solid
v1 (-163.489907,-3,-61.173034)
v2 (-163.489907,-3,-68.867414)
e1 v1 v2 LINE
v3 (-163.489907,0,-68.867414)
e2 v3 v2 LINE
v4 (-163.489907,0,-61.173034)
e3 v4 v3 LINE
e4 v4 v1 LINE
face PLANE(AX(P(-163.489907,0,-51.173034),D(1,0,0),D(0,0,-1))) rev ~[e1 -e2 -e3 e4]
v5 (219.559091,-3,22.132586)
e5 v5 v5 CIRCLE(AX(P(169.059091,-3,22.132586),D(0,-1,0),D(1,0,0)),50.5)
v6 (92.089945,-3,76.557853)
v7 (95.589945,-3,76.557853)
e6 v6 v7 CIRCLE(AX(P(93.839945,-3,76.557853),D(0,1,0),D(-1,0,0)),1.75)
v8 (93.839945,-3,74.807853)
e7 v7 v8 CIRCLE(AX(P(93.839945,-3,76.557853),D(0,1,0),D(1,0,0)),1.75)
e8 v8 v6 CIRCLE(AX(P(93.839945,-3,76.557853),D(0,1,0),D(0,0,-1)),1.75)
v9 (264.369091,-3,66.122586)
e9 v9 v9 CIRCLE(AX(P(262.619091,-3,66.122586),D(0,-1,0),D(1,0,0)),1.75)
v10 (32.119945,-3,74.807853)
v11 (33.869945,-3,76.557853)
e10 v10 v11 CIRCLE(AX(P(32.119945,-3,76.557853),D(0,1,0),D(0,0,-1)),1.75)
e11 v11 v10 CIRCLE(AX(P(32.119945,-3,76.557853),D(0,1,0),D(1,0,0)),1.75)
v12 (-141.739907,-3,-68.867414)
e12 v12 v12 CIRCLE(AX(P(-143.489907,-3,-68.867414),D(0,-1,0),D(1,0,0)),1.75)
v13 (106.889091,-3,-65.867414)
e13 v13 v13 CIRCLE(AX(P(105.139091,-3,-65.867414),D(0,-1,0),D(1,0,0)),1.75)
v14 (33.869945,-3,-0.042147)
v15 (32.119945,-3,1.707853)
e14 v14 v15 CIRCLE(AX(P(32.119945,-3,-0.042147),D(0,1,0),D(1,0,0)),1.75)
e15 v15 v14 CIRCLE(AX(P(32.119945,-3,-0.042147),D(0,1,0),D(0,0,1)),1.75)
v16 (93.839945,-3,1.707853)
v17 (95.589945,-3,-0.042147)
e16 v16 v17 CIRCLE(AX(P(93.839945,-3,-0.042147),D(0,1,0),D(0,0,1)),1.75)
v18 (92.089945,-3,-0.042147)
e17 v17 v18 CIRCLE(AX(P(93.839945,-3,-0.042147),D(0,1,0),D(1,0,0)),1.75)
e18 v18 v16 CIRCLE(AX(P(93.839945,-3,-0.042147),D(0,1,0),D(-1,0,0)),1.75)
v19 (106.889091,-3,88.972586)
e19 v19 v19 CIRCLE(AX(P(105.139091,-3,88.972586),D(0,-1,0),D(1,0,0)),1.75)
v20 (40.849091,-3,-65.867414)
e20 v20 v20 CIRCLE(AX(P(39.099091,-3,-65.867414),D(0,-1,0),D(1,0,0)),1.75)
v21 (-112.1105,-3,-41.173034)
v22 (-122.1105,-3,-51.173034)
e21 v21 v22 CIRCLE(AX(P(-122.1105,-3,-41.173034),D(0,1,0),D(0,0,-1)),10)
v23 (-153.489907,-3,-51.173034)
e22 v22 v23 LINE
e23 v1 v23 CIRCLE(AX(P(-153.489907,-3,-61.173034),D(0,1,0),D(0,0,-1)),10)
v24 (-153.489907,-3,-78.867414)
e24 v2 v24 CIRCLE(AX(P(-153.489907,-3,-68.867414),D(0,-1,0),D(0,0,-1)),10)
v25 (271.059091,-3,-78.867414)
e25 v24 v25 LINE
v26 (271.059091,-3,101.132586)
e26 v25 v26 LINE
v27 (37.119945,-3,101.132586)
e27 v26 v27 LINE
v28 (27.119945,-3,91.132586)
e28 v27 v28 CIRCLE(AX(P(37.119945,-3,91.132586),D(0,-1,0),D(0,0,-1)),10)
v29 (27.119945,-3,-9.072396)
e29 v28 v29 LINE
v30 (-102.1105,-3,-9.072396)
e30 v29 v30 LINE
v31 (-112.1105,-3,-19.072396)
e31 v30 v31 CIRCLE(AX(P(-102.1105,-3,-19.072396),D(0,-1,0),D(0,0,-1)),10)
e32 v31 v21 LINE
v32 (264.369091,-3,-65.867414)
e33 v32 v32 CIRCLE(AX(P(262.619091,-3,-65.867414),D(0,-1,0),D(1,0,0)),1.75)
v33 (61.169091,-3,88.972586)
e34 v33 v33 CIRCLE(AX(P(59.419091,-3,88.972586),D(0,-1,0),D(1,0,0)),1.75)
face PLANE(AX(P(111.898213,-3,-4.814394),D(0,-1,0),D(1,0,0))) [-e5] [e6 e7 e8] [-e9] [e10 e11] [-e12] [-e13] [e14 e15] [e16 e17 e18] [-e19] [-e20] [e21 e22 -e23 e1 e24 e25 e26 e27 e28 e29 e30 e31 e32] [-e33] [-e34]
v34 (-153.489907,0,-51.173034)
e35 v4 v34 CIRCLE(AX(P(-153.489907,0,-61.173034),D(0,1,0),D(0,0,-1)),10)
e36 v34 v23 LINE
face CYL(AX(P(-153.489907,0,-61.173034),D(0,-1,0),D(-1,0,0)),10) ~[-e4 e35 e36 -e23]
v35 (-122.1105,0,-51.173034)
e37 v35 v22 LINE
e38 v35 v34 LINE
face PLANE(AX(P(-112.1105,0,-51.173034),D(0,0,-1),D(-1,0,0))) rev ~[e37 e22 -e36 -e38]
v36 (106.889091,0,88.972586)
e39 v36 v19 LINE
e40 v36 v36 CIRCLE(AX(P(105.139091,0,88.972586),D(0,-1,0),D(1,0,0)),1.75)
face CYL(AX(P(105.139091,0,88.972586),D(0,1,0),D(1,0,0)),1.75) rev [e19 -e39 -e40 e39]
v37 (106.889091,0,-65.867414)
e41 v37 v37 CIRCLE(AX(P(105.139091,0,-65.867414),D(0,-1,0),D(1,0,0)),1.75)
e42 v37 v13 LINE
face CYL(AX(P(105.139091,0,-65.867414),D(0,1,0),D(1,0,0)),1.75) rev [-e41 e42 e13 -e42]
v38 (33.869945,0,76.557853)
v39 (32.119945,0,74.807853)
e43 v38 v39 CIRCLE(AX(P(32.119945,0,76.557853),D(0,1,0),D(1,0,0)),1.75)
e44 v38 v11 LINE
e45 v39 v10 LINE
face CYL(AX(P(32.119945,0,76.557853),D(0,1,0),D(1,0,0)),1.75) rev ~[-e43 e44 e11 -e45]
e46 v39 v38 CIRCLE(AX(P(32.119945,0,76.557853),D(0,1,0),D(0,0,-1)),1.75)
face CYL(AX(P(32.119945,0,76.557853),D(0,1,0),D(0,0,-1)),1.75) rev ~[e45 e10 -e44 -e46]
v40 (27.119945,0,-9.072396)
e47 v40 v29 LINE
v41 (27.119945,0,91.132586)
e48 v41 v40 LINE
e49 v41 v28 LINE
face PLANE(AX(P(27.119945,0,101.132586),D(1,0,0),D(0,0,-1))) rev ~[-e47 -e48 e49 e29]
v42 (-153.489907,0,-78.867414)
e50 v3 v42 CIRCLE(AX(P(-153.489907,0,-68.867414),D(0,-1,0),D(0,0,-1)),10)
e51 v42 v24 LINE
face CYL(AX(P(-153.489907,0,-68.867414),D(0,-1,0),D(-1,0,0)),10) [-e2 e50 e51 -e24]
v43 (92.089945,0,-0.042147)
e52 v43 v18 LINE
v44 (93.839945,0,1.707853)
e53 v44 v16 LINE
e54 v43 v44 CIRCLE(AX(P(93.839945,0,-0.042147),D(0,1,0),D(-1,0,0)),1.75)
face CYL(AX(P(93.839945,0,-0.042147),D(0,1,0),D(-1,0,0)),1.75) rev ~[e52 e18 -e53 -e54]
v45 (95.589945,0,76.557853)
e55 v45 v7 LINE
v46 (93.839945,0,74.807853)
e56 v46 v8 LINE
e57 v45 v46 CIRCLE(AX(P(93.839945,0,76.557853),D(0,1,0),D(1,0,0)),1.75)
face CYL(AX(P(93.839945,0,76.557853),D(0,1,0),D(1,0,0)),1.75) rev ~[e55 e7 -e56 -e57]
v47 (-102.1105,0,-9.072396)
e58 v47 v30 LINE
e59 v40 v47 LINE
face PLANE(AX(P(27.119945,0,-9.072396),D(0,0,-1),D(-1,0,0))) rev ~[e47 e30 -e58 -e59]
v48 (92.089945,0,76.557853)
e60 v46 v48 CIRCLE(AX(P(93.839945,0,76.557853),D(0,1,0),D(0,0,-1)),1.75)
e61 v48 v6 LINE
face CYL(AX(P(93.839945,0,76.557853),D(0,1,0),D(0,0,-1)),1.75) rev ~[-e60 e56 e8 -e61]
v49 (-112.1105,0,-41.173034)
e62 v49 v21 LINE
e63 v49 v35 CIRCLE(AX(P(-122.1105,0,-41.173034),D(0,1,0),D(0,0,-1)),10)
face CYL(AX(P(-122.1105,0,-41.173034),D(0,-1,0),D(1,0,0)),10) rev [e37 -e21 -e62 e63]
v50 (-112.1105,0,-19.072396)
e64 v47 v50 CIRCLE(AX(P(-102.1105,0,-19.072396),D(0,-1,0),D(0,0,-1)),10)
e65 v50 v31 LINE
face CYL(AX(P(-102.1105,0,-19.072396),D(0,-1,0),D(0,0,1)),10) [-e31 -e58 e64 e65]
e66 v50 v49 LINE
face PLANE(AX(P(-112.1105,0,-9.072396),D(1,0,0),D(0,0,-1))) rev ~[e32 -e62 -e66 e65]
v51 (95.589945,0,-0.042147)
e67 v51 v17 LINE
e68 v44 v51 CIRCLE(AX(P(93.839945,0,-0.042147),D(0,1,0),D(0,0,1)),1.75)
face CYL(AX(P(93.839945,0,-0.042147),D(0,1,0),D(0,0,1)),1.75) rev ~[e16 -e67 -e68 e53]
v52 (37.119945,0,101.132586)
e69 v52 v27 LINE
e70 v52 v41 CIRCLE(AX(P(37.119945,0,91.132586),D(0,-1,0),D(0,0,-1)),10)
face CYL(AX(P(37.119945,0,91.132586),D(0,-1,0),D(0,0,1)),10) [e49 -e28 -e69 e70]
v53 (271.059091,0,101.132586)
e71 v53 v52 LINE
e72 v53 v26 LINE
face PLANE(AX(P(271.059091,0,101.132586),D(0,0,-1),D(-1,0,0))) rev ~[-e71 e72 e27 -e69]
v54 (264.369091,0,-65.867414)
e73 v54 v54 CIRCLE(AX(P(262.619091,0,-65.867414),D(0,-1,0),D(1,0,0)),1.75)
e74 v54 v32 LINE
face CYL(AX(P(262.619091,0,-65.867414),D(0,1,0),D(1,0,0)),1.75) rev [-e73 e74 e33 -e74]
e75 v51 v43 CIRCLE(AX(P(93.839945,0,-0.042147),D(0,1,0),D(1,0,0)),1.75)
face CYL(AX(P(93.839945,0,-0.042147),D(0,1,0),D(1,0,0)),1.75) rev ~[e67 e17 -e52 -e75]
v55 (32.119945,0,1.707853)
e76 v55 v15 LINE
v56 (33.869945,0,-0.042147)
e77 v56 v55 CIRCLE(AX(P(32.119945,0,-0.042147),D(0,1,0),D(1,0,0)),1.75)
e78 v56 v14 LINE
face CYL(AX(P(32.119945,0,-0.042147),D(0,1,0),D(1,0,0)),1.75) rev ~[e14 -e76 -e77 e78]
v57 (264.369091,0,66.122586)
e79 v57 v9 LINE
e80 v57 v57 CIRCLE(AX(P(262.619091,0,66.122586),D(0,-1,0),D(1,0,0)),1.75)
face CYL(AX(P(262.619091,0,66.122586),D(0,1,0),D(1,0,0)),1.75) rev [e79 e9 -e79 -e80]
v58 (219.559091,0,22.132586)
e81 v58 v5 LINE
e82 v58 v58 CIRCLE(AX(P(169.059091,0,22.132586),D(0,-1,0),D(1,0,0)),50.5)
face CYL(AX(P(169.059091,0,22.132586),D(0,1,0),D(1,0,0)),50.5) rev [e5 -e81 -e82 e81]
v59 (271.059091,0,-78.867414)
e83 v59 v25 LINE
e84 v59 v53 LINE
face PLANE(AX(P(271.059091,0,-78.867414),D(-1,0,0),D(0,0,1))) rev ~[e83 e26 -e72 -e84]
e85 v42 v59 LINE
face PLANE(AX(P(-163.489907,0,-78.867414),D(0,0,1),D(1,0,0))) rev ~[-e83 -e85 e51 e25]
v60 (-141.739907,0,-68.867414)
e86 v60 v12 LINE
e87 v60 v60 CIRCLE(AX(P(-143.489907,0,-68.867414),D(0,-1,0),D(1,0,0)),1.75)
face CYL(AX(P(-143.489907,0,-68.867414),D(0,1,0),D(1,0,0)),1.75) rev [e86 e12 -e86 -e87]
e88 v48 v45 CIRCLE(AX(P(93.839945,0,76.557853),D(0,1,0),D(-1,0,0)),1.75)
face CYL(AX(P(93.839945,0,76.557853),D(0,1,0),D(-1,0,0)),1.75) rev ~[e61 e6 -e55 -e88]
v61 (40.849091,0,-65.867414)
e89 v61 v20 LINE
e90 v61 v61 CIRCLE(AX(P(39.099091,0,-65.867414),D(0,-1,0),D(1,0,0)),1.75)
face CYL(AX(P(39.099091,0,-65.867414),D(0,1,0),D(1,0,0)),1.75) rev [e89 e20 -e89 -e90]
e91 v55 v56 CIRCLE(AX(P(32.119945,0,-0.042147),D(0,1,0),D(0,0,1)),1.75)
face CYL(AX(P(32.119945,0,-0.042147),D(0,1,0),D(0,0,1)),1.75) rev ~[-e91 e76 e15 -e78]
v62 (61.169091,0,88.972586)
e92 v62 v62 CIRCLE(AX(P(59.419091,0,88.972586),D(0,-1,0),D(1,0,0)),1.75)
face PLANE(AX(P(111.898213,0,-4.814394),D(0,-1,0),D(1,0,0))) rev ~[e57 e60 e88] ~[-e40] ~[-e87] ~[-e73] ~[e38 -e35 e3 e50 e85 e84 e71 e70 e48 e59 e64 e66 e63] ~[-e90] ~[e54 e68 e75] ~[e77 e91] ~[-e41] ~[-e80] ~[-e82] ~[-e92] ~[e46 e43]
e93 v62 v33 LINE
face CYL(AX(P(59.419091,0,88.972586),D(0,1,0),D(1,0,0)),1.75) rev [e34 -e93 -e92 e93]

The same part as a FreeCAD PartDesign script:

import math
import FreeCAD as App
import Part
import Sketcher

V = App.Vector


def edges_at(feature, points):
    """Names of the edges that pass closest to the given points."""
    edges = feature.Shape.Edges
    near = lambda p: min(range(len(edges)), key=lambda i: edges[i].distToShape(Part.Vertex(*p))[0])
    return sorted({f"Edge{near(p) + 1}" for p in points})

doc = App.newDocument("Part")
body = doc.addObject("PartDesign::Body", "Body")

# Sketch on XZ plane
sketch1 = body.newObject("Sketcher::SketchObject", "Sketch")
sketch1.AttachmentSupport = (doc.getObject("XZ_Plane"), [""])
sketch1.MapMode = "FlatFace"
sketch1.addGeometry([
    Part.LineSegment(V(-163.5, -51.2, 0), V(-163.5, -78.9, 0)),  # 0
    Part.LineSegment(V(-163.5, -78.9, 0), V(271.1, -78.9, 0)),  # 1
    Part.LineSegment(V(271.1, -78.9, 0), V(271.1, 101.1, 0)),  # 2
    Part.LineSegment(V(271.1, 101.1, 0), V(27.1, 101.1, 0)),  # 3
    Part.LineSegment(V(27.1, 101.1, 0), V(27.1, -9.1, 0)),  # 4
    Part.LineSegment(V(27.1, -9.1, 0), V(-112.1, -9.1, 0)),  # 5
    Part.LineSegment(V(-112.1, -9.1, 0), V(-112.1, -51.2, 0)),  # 6
    Part.LineSegment(V(-112.1, -51.2, 0), V(-163.5, -51.2, 0)),  # 7
    Part.Circle(V(-143.5, -68.9, 0), V(0, 0, 1), 1.8),  # 8
    Part.Circle(V(39.1, -65.9, 0), V(0, 0, 1), 1.8),  # 9
    Part.Circle(V(105.1, -65.9, 0), V(0, 0, 1), 1.8),  # 10
    Part.Circle(V(262.6, -65.9, 0), V(0, 0, 1), 1.8),  # 11
    Part.Circle(V(59.4, 89, 0), V(0, 0, 1), 1.8),  # 12
    Part.ArcOfCircle(Part.Circle(V(32.1, 0, 0), V(0, 0, 1), 1.8), math.radians(90), math.radians(360)),  # 13
    Part.ArcOfCircle(Part.Circle(V(32.1, 0, 0), V(0, 0, 1), 1.8), math.radians(0), math.radians(90)),  # 14
    Part.ArcOfCircle(Part.Circle(V(32.1, 76.6, 0), V(0, 0, 1), 1.8), math.radians(0), math.radians(270)),  # 15
    Part.ArcOfCircle(Part.Circle(V(32.1, 76.6, 0), V(0, 0, 1), 1.8), math.radians(-90), math.radians(0)),  # 16
    Part.ArcOfCircle(Part.Circle(V(93.8, 0, 0), V(0, 0, 1), 1.8), math.radians(180), math.radians(360)),  # 17
    Part.ArcOfCircle(Part.Circle(V(93.8, 0, 0), V(0, 0, 1), 1.8), math.radians(90), math.radians(180)),  # 18
    Part.ArcOfCircle(Part.Circle(V(93.8, 0, 0), V(0, 0, 1), 1.8), math.radians(0), math.radians(90)),  # 19
    Part.ArcOfCircle(Part.Circle(V(93.8, 76.6, 0), V(0, 0, 1), 1.8), math.radians(0), math.radians(180)),  # 20
    Part.ArcOfCircle(Part.Circle(V(93.8, 76.6, 0), V(0, 0, 1), 1.8), math.radians(-90), math.radians(0)),  # 21
    Part.ArcOfCircle(Part.Circle(V(93.8, 76.6, 0), V(0, 0, 1), 1.8), math.radians(-180), math.radians(-90)),  # 22
    Part.Circle(V(169.1, 22.1, 0), V(0, 0, 1), 50.5),  # 23
    Part.Circle(V(105.1, 89, 0), V(0, 0, 1), 1.8),  # 24
    Part.Circle(V(262.6, 66.1, 0), V(0, 0, 1), 1.8),  # 25
], False)
sketch1.addConstraint([
    Sketcher.Constraint("Coincident", 0, 2, 1, 1),
    Sketcher.Constraint("Coincident", 1, 2, 2, 1),
    Sketcher.Constraint("Coincident", 2, 2, 3, 1),
    Sketcher.Constraint("Coincident", 3, 2, 4, 1),
    Sketcher.Constraint("Coincident", 4, 2, 5, 1),
    Sketcher.Constraint("Coincident", 5, 2, 6, 1),
    Sketcher.Constraint("Coincident", 6, 2, 7, 1),
    Sketcher.Constraint("Coincident", 7, 2, 0, 1),
    Sketcher.Constraint("Tangent", 13, 1, 14, 2),
    Sketcher.Constraint("Coincident", 14, 1, 13, 2),
    Sketcher.Constraint("Tangent", 15, 1, 16, 2),
    Sketcher.Constraint("Coincident", 16, 1, 15, 2),
    Sketcher.Constraint("Tangent", 17, 1, 18, 2),
    Sketcher.Constraint("Tangent", 18, 1, 19, 2),
    Sketcher.Constraint("Tangent", 19, 1, 17, 2),
    Sketcher.Constraint("Tangent", 20, 1, 21, 2),
    Sketcher.Constraint("Tangent", 21, 1, 22, 2),
    Sketcher.Constraint("Tangent", 22, 1, 20, 2),
    Sketcher.Constraint("Vertical", 0),
    Sketcher.Constraint("Horizontal", 1),
    Sketcher.Constraint("Vertical", 2),
    Sketcher.Constraint("Horizontal", 3),
    Sketcher.Constraint("Vertical", 4),
    Sketcher.Constraint("Horizontal", 5),
    Sketcher.Constraint("Vertical", 6),
    Sketcher.Constraint("Horizontal", 7),
    Sketcher.Constraint("Equal", 8, 9),
    Sketcher.Constraint("Equal", 9, 10),
    Sketcher.Constraint("Equal", 10, 11),
    Sketcher.Constraint("Equal", 11, 12),
    Sketcher.Constraint("Equal", 12, 13),
    Sketcher.Constraint("Equal", 14, 15),
    Sketcher.Constraint("Equal", 16, 17),
    Sketcher.Constraint("Equal", 19, 20),
    Sketcher.Constraint("Equal", 22, 24),
    Sketcher.Constraint("Equal", 24, 25),
    Sketcher.Constraint("Horizontal", 9, 3, 10, 3),
    Sketcher.Constraint("Horizontal", 10, 3, 11, 3),
    Sketcher.Constraint("Horizontal", 14, 3, 17, 3),
    Sketcher.Constraint("Horizontal", 16, 3, 20, 3),
    Sketcher.Constraint("Horizontal", 12, 3, 24, 3),
    Sketcher.Constraint("Horizontal", 19, 3, 14, 1),
    Sketcher.Constraint("Horizontal", 22, 3, 15, 1),
    Sketcher.Constraint("Horizontal", 14, 1, 17, 1),
    Sketcher.Constraint("Horizontal", 17, 1, 19, 1),
    Sketcher.Constraint("Horizontal", 15, 1, 20, 1),
    Sketcher.Constraint("Horizontal", 20, 1, 22, 1),
    Sketcher.Constraint("Vertical", 14, 3, 15, 3),
    Sketcher.Constraint("Vertical", 19, 3, 20, 3),
    Sketcher.Constraint("Vertical", 10, 3, 24, 3),
    Sketcher.Constraint("Vertical", 11, 3, 25, 3),
    Sketcher.Constraint("Vertical", 16, 3, 13, 1),
    Sketcher.Constraint("Vertical", 13, 1, 16, 1),
    Sketcher.Constraint("Vertical", 22, 3, 18, 1),
    Sketcher.Constraint("Vertical", 18, 1, 21, 1),
    Sketcher.Constraint("Diameter", 23, 101.0),
    Sketcher.Constraint("Diameter", 8, 3.5),
    Sketcher.Constraint("DistanceY", 2, 1, 2, 2, 180.0),
    Sketcher.Constraint("DistanceY", 8, 3, 9, 3, 3.0),
    Sketcher.Constraint("DistanceX", 0, 2, 8, 3, 20.0),
    Sketcher.Constraint("DistanceY", 0, 2, 8, 3, 10.0),
    Sketcher.Constraint("DistanceX", 23, 3, 1, 2, 102.0),
    Sketcher.Constraint("DistanceY", 1, 2, 23, 3, 101.0),
    Sketcher.Constraint("DistanceX", 3, 2, 16, 3, 5.0),
    Sketcher.Constraint("DistanceX", 12, 3, 11, 3, 203.2),
    Sketcher.Constraint("DistanceY", 13, 3, 15, 3, 76.6),
    Sketcher.Constraint("DistanceX", 9, 3, 10, 3, 66.04),
    Sketcher.Constraint("DistanceX", 10, 3, 11, 3, 157.48),
    Sketcher.Constraint("DistanceY", 9, 3, 12, 3, 154.84),
    Sketcher.Constraint("DistanceX", 13, 3, 17, 3, 61.72),
    Sketcher.Constraint("DistanceX", 23, 3, 25, 3, 93.56),
    Sketcher.Constraint("DistanceY", 23, 3, 25, 3, 43.99),
    Sketcher.Constraint("DistanceY", 0, 2, 0, 1, 27.69438),
    Sketcher.Constraint("DistanceX", 5, 2, -1, 1, 112.1105),
    Sketcher.Constraint("DistanceX", 1, 1, 1, 2, 434.548998),
    Sketcher.Constraint("DistanceX", 3, 2, 3, 1, 243.939146),
    Sketcher.Constraint("DistanceX", 5, 2, 5, 1, 139.230445),
    Sketcher.Constraint("DistanceY", 4, 2, 4, 1, 110.204982),
    Sketcher.Constraint("DistanceY", 4, 2, 14, 3, 9.030249),
    Sketcher.Constraint("DistanceY", 8, 3, -1, 1, 68.867414),
])
pad1 = body.newObject("PartDesign::Pad", "Pad")
pad1.Profile = sketch1
pad1.Length = 3
doc.recompute()

fillet = body.newObject("PartDesign::Fillet", "Fillet")
fillet.Base = (pad1, edges_at(pad1, [
    (-163.49, -1.5, -51.173),
    (-112.111, -1.5, -9.072),
    (-112.111, -1.5, -51.173),
    (-163.49, -1.5, -78.867),
    (27.12, -1.5, 101.133),
]))
fillet.Radius = 10

doc.recompute()
